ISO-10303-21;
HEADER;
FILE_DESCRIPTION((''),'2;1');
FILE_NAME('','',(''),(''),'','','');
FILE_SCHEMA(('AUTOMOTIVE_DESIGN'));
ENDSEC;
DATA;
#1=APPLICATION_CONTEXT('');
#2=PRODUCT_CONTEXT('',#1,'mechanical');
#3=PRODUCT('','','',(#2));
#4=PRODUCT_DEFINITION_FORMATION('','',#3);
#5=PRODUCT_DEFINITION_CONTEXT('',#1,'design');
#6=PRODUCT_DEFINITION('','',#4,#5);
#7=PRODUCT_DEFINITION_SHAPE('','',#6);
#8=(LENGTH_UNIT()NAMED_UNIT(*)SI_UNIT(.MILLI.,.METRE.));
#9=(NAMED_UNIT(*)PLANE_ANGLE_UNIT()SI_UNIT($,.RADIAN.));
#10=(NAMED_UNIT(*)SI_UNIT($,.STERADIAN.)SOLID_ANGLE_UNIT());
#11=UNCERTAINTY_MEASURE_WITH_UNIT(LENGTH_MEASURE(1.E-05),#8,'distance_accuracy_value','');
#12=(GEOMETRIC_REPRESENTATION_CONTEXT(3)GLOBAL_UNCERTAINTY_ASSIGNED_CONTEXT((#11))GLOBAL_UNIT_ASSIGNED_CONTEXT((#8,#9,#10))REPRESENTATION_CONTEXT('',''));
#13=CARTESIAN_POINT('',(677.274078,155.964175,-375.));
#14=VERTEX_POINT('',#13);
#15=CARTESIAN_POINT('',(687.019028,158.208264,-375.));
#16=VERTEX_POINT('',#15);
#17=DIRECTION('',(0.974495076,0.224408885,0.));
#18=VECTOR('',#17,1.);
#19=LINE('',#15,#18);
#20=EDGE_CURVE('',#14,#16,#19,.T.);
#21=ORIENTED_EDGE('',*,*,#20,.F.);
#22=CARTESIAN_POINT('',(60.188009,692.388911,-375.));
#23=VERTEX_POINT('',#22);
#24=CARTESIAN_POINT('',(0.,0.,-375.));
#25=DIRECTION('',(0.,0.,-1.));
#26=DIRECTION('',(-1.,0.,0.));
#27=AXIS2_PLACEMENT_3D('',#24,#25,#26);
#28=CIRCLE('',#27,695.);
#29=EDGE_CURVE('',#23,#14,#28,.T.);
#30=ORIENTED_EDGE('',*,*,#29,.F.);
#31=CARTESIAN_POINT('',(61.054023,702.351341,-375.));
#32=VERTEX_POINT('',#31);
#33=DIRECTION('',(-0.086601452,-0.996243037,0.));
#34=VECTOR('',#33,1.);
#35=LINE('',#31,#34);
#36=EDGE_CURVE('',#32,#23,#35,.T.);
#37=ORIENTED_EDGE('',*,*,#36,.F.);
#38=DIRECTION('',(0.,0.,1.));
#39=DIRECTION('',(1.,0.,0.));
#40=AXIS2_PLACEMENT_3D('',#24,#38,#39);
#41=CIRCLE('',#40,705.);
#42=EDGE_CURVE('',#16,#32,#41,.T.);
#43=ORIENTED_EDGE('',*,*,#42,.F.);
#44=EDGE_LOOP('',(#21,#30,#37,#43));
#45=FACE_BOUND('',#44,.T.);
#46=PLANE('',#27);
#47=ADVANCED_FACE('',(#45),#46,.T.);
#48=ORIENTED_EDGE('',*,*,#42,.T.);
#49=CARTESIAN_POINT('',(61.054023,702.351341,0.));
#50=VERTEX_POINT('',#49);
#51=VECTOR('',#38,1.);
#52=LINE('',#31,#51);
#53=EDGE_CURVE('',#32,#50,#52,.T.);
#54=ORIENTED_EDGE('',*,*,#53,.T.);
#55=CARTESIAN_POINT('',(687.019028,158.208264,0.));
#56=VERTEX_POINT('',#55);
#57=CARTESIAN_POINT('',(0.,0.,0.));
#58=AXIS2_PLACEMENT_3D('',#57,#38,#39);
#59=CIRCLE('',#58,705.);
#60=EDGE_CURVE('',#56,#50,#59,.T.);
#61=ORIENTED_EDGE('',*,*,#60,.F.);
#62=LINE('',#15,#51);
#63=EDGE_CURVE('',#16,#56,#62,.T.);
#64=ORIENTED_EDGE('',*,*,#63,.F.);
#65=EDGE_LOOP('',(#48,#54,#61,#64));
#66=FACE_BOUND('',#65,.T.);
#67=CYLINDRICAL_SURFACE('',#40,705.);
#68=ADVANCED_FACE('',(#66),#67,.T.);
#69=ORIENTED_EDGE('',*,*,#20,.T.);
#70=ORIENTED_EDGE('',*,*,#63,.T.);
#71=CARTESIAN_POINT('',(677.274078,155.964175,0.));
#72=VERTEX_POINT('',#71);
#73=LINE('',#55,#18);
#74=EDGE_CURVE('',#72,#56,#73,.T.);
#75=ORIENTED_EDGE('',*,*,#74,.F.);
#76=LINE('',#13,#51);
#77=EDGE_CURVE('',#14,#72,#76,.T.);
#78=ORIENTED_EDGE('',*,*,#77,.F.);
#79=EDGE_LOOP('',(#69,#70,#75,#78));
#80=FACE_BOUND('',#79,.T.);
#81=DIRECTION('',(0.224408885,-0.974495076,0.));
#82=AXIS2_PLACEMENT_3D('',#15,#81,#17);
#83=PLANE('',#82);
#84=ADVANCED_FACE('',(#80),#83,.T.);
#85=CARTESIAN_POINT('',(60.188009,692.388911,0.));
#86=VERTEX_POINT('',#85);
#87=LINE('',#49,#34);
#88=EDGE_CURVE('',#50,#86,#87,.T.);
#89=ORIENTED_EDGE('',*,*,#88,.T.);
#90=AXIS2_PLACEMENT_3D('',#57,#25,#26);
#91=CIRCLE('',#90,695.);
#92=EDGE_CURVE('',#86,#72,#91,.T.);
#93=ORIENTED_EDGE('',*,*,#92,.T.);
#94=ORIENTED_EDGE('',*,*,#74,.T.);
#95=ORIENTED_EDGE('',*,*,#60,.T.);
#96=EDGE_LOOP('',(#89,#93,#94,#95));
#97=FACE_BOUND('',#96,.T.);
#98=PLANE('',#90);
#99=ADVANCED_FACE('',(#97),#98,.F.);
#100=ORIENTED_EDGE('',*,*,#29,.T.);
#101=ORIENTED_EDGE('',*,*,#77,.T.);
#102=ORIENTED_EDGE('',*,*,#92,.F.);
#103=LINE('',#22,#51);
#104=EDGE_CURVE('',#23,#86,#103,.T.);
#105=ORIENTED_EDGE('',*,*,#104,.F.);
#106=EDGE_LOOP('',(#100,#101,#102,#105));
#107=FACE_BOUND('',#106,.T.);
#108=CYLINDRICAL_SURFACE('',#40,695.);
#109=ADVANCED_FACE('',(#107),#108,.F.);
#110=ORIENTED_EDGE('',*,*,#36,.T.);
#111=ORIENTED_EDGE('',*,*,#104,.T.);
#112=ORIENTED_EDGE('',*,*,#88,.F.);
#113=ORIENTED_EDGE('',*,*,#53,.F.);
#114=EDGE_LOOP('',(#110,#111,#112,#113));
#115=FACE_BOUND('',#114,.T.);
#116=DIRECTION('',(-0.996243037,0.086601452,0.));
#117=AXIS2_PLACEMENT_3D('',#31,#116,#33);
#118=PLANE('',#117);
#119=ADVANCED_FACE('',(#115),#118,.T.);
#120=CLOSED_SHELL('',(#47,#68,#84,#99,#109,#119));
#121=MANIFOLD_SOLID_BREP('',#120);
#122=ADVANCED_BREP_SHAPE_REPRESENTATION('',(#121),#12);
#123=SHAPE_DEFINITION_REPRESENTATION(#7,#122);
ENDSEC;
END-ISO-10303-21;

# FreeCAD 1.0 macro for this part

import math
import FreeCAD as App
import Part
import Sketcher
Q = App.Units.Quantity

doc = App.newDocument("Part")
body = doc.addObject("PartDesign::Body", "Body")

# Sketch on XY plane
sketch1 = doc.addObject("Sketcher::SketchObject", "Sketch")
body.addObject(sketch1)
sketch1.AttachmentSupport = (doc.XY_Plane, [""])
sketch1.MapMode = "FlatFace"
sketch1.addGeometry([
    Part.LineSegment(App.Vector(61, 702, 0), App.Vector(60, 692, 0)),
    Part.ArcOfCircle(Part.Circle(App.Vector(0, 0, 0), App.Vector(0, 0, 1), 695), math.radians(13), math.radians(85)),
    Part.LineSegment(App.Vector(677, 156, 0), App.Vector(687, 158, 0)),
    Part.ArcOfCircle(Part.Circle(App.Vector(0, 0, 0), App.Vector(0, 0, 1), 705), math.radians(13), math.radians(85)),
], False)
sketch1.addConstraint([
    Sketcher.Constraint("Coincident", 0, 2, 1, 2),
    Sketcher.Constraint("Coincident", 1, 1, 2, 1),
    Sketcher.Constraint("Coincident", 2, 2, 3, 1),
    Sketcher.Constraint("Coincident", 3, 2, 0, 1),
    Sketcher.Constraint("Coincident", 1, 3, -1, 1),
    Sketcher.Constraint("Coincident", 3, 3, -1, 1),
    Sketcher.Constraint("Radius", 1, Q("695 mm")),
    Sketcher.Constraint("Radius", 3, Q("705 mm")),
    Sketcher.Constraint("DistanceX", -1, 1, 0, 2, Q("60.188009 mm")),
    Sketcher.Constraint("DistanceX", -1, 1, 2, 2, Q("687.019028 mm")),
    Sketcher.Constraint("Angle", 0, Q("-94.968121 deg")),
    Sketcher.Constraint("Angle", 2, Q("12.968121 deg")),
])
pad1 = doc.addObject("PartDesign::Pad", "Pad")
body.addObject(pad1)
pad1.Profile = sketch1
pad1.Length = 375
pad1.Reversed = True

doc.recompute()
